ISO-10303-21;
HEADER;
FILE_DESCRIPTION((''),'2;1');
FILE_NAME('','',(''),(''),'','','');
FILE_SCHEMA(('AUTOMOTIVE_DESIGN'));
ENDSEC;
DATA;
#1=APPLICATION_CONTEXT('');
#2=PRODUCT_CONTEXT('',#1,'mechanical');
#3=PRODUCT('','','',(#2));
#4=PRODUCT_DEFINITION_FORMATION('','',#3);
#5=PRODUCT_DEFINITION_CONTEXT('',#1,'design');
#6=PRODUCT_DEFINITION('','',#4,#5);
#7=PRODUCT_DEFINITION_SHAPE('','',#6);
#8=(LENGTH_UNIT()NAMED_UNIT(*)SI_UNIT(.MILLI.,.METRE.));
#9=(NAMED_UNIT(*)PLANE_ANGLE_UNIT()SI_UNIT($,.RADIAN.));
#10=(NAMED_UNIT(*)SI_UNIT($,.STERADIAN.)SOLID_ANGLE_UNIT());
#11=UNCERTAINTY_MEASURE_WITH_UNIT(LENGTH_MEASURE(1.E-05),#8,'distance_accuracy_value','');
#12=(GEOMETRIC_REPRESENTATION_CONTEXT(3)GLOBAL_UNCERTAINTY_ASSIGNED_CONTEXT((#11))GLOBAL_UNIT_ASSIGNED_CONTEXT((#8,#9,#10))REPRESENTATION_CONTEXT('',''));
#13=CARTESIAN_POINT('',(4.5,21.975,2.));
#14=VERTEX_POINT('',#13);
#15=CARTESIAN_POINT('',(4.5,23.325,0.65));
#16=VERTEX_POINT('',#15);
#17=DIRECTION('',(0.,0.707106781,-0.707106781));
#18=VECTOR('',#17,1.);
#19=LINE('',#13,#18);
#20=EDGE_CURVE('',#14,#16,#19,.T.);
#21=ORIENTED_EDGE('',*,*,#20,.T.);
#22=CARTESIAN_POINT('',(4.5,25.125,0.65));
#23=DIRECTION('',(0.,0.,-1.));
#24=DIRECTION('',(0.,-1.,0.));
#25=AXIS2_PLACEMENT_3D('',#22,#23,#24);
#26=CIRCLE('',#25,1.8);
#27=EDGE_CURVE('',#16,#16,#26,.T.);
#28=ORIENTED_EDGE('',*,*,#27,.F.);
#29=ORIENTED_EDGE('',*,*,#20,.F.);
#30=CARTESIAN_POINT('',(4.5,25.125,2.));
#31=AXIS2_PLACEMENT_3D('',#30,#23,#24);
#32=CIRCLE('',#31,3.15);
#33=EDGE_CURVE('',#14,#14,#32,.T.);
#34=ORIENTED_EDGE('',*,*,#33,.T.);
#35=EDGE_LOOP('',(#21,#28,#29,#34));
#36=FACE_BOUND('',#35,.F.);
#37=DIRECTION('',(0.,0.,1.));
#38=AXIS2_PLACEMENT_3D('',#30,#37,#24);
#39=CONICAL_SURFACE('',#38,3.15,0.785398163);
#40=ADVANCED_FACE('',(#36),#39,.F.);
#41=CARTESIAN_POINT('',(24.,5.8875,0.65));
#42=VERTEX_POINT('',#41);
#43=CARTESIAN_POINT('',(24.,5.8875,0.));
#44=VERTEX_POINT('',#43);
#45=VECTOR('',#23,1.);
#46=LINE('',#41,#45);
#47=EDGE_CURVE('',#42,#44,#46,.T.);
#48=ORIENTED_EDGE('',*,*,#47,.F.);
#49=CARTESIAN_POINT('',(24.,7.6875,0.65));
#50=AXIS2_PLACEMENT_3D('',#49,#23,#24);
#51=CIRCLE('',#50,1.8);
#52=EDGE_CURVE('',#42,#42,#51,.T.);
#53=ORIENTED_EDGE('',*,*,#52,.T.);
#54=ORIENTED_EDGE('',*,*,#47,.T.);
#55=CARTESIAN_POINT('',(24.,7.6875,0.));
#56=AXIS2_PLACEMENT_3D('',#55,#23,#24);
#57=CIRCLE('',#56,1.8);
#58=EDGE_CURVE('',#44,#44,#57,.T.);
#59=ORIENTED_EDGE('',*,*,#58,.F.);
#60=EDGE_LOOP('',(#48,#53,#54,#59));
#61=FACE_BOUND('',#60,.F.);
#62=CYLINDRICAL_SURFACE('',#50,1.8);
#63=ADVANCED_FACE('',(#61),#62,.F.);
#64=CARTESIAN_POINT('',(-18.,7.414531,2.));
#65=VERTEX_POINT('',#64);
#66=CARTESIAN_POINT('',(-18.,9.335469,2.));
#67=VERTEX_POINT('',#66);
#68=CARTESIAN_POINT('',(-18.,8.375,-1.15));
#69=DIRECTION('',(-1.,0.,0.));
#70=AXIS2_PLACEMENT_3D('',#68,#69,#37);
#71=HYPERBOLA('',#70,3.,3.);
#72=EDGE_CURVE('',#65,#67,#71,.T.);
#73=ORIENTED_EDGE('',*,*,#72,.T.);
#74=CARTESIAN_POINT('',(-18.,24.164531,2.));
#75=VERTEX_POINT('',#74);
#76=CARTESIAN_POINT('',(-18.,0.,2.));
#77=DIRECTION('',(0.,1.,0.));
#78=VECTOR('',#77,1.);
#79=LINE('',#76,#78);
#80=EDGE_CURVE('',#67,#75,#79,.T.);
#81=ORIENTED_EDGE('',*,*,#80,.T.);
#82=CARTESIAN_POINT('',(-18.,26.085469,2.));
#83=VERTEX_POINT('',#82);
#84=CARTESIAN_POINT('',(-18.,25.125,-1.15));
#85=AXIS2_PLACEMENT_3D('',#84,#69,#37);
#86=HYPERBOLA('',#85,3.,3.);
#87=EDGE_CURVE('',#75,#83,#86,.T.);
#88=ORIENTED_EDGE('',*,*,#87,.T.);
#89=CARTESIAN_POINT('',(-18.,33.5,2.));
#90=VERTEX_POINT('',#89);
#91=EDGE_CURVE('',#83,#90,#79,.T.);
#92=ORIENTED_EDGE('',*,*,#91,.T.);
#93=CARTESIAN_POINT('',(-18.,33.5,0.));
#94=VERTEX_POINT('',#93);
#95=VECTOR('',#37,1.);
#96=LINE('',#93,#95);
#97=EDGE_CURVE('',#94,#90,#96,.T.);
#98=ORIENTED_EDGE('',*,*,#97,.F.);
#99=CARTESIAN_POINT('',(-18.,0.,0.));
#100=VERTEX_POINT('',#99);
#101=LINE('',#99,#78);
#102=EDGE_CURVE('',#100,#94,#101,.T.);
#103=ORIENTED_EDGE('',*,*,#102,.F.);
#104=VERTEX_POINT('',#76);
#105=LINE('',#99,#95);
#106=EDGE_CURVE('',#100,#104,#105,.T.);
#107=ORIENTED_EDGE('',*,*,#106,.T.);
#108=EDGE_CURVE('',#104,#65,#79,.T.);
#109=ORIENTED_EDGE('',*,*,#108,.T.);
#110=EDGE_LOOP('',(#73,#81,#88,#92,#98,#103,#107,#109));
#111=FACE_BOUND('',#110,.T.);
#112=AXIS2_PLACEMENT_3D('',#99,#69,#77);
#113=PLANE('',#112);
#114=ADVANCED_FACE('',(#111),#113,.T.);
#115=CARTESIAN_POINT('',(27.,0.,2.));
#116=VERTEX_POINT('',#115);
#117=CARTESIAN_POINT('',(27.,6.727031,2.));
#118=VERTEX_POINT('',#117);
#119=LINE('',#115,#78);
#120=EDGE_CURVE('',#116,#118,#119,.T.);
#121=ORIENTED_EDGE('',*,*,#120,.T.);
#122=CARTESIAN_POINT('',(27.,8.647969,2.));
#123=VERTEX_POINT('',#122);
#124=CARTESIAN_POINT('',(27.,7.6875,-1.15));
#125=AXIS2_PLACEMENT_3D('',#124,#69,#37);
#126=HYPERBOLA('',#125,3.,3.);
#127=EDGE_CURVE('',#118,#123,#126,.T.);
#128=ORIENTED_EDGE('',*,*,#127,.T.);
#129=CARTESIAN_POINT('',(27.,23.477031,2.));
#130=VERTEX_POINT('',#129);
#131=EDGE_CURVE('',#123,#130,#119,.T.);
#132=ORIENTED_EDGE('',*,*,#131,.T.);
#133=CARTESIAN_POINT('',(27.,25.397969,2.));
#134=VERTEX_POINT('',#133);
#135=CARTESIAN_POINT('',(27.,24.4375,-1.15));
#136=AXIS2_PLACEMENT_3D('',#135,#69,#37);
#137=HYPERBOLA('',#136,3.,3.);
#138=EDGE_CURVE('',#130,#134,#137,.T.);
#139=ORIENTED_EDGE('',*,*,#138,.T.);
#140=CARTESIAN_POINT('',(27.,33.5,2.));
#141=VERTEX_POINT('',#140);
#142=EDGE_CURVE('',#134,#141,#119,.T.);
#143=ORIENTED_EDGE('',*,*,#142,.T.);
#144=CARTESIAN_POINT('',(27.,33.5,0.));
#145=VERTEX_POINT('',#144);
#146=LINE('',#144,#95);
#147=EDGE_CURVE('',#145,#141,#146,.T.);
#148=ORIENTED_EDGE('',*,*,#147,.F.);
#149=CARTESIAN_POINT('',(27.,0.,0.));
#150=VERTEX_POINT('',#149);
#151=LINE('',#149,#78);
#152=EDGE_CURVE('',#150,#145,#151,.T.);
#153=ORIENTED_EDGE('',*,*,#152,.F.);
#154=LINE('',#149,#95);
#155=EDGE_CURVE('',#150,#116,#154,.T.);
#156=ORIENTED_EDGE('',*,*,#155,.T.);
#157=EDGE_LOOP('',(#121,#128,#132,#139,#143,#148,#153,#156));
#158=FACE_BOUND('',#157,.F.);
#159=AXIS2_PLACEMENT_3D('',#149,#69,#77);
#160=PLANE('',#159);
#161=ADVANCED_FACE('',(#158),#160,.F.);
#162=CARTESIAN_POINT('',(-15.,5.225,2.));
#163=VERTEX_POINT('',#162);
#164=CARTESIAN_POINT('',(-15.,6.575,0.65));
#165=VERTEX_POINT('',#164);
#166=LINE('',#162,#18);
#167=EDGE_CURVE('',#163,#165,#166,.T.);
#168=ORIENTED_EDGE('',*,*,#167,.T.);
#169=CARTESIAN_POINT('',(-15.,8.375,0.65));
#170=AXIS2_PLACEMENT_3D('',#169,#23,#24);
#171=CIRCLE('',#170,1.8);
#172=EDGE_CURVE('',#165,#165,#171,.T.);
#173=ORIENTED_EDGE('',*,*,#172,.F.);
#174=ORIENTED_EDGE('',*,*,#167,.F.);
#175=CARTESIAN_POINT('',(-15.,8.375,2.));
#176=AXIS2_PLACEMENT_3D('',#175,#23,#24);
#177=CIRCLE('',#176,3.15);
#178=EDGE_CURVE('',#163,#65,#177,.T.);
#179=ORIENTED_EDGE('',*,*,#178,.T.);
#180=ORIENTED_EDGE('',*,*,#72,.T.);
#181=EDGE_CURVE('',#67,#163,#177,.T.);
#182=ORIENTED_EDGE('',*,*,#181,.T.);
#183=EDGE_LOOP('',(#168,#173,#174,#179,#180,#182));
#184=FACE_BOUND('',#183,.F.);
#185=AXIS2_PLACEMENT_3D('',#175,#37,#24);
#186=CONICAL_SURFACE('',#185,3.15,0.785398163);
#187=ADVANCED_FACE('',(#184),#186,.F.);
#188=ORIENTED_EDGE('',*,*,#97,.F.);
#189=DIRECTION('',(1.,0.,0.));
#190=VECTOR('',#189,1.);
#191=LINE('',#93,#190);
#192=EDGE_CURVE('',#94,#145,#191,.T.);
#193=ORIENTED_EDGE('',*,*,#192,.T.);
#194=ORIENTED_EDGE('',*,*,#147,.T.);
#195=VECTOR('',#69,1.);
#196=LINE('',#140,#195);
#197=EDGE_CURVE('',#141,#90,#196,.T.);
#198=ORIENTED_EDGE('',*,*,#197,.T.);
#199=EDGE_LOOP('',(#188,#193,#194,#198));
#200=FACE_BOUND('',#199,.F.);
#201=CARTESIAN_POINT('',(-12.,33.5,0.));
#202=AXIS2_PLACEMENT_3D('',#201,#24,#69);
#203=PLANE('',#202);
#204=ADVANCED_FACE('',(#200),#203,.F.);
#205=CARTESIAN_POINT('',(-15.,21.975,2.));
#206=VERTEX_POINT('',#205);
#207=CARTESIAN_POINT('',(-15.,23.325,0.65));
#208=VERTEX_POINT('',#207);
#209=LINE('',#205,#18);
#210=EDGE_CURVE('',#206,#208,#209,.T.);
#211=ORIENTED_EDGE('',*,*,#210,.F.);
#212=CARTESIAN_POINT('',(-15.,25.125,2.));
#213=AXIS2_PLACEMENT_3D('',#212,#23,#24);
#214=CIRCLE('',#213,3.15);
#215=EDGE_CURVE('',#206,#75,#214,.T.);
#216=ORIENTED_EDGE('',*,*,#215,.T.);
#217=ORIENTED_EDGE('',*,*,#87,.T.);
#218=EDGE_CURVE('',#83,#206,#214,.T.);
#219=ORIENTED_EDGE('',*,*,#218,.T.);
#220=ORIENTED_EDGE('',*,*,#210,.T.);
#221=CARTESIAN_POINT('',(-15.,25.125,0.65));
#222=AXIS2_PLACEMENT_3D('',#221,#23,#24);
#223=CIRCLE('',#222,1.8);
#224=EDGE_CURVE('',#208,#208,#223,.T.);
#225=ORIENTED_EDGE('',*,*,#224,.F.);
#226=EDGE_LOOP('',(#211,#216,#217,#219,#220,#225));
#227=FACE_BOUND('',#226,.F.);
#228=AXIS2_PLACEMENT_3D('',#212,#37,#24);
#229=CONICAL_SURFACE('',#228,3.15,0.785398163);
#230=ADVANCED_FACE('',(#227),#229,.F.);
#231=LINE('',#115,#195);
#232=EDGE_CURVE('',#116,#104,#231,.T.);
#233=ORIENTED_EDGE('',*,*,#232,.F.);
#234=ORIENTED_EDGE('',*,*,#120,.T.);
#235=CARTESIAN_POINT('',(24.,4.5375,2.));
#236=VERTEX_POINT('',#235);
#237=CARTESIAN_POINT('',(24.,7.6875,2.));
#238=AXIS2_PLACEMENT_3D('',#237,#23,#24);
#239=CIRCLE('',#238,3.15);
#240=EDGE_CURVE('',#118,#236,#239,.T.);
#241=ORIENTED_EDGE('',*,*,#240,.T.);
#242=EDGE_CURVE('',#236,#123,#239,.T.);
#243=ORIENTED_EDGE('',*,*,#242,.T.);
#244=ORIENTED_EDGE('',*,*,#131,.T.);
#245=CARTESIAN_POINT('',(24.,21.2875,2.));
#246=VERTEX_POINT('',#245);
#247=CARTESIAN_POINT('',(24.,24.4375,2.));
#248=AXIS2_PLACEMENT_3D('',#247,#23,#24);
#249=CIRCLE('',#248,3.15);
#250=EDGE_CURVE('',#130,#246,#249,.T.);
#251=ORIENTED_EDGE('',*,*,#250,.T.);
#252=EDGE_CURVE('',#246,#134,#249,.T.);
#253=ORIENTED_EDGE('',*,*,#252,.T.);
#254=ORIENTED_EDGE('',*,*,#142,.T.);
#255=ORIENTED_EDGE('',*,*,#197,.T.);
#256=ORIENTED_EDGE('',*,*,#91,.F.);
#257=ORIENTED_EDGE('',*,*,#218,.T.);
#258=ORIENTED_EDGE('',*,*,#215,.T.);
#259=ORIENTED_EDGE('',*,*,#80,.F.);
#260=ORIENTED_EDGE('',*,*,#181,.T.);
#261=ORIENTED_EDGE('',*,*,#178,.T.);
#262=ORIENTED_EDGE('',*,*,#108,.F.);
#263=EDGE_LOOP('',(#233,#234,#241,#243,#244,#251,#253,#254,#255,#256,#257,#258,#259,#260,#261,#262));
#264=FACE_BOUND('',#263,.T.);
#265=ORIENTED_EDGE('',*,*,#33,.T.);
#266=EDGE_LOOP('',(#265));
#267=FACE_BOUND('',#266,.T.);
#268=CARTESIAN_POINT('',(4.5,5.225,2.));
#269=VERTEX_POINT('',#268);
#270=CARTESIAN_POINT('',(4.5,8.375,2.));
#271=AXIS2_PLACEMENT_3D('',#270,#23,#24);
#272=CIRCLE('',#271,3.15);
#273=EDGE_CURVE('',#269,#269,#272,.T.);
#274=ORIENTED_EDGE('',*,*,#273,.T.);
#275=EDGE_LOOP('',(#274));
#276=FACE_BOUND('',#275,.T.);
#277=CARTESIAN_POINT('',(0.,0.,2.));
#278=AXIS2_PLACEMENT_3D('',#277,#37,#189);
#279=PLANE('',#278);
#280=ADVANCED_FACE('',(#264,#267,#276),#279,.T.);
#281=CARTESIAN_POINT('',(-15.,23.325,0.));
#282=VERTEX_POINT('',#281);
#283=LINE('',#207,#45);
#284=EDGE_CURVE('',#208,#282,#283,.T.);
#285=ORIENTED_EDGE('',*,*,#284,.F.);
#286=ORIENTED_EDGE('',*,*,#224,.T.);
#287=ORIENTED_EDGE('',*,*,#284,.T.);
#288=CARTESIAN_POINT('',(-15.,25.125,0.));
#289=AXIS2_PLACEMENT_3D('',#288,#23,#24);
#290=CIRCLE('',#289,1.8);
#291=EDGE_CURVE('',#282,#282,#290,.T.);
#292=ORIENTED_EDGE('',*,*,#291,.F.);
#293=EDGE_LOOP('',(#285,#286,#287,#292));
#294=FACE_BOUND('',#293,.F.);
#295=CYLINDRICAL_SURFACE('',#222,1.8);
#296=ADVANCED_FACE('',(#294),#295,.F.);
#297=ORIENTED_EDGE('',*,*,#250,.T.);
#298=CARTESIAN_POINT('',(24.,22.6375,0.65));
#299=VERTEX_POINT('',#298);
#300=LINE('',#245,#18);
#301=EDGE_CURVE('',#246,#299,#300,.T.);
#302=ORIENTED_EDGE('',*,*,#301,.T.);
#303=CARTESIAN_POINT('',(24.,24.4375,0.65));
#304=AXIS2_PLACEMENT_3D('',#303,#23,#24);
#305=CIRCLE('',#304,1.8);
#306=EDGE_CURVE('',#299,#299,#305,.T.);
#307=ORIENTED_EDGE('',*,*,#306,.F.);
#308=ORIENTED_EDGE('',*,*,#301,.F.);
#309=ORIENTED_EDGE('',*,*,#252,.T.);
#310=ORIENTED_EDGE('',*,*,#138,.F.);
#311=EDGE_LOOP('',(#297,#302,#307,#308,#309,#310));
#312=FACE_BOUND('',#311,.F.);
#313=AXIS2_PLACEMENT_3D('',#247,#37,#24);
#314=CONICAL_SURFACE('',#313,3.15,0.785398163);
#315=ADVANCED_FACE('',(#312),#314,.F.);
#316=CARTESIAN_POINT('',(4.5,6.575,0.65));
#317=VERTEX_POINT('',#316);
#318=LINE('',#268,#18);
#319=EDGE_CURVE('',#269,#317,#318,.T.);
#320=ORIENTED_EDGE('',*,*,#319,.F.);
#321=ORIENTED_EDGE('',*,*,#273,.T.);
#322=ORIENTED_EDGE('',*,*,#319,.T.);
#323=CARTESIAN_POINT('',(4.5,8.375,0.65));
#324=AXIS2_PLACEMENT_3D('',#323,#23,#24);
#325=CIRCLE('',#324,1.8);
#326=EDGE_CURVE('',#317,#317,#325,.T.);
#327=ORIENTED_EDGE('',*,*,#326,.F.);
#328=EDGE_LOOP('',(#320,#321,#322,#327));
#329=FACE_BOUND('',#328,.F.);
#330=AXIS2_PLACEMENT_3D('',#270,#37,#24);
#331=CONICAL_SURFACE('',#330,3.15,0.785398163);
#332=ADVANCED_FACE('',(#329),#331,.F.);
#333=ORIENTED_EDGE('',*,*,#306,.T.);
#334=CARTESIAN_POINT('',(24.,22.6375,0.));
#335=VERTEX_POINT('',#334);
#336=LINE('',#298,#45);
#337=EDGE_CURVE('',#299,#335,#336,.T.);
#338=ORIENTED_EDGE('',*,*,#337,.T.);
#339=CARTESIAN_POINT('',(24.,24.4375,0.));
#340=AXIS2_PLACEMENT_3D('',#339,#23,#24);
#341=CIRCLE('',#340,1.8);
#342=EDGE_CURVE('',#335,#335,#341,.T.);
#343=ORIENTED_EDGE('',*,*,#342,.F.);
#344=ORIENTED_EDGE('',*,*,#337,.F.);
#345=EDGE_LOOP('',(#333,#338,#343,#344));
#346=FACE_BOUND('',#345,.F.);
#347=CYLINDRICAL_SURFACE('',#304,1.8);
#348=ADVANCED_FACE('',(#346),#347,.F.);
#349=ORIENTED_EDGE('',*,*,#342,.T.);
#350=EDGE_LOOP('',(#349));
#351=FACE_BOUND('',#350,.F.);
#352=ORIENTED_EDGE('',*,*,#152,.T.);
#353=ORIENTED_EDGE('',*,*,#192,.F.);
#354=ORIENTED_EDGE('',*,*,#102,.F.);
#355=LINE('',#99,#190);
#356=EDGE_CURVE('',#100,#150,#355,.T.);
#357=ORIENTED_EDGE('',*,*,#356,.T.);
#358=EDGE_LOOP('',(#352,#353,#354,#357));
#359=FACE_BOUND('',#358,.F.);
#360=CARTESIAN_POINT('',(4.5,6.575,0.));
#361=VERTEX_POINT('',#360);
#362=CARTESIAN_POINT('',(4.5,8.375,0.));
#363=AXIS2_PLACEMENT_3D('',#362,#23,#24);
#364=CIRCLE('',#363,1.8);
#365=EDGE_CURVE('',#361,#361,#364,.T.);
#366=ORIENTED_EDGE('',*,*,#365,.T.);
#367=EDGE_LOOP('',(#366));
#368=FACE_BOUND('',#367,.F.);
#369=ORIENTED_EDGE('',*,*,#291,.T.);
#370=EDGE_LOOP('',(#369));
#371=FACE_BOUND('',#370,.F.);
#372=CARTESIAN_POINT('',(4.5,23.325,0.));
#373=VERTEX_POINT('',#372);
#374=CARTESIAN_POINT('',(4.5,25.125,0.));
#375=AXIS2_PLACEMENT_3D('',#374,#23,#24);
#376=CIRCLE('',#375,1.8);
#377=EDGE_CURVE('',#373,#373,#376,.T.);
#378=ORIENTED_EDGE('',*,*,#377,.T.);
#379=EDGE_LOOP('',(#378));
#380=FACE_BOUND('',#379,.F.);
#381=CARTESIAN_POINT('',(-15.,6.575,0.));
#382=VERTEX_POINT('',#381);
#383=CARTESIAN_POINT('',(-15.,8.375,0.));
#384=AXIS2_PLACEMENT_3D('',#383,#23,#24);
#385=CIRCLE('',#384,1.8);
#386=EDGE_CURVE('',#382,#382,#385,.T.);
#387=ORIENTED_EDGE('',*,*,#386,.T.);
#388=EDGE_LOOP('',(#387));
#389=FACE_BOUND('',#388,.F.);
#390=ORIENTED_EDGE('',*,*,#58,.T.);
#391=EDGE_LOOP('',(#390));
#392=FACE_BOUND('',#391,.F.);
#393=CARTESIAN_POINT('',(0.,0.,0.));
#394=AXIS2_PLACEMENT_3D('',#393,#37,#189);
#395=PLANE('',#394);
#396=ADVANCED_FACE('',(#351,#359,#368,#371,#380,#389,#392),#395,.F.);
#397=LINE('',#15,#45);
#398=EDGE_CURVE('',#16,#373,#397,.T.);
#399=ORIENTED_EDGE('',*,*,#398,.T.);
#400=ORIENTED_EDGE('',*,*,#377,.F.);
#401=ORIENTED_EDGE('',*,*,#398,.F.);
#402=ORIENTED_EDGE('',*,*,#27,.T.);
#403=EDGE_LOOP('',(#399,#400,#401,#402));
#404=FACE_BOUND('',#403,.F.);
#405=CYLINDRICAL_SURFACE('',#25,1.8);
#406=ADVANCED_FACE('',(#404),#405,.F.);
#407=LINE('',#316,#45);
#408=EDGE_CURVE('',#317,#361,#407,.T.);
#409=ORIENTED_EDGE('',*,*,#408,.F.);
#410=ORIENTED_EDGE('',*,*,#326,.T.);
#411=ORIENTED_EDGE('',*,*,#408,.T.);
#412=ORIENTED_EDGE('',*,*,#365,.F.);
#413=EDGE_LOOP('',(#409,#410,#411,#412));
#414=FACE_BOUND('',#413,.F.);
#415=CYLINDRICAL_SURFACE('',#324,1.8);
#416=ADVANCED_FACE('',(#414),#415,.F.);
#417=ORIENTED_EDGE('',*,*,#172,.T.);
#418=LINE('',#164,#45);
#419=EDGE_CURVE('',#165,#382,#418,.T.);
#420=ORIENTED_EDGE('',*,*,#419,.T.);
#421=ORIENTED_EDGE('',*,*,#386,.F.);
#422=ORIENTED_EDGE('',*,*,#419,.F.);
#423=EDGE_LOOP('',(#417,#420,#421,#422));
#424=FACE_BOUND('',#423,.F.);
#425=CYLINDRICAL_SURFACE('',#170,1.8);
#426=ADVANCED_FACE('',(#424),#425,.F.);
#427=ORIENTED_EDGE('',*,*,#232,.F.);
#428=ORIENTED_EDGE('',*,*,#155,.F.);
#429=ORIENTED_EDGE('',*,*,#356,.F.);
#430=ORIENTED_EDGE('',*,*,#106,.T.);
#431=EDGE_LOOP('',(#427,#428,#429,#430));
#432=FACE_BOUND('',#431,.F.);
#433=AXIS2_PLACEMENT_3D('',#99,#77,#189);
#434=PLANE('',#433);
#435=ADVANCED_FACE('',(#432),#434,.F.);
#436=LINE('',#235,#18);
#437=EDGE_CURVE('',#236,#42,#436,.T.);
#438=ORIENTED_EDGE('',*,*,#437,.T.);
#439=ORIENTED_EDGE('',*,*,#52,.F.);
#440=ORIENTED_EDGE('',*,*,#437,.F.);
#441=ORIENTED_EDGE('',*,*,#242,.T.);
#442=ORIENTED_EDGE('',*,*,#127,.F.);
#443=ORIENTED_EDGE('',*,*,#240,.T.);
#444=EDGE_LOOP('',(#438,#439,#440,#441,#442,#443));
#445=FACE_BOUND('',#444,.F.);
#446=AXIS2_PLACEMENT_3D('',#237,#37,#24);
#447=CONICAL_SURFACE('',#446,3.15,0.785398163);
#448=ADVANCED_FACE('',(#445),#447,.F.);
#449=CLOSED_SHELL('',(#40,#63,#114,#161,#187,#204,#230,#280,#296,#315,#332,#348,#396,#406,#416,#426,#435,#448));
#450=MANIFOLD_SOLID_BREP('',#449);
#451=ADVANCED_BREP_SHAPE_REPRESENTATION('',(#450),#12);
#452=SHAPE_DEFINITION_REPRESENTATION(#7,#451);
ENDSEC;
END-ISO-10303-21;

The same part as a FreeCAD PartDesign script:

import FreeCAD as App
import Part
import Sketcher
Q = App.Units.Quantity

doc = App.newDocument("Part")
body = doc.addObject("PartDesign::Body", "Body")

# Sketch on XY plane
sketch1 = doc.addObject("Sketcher::SketchObject", "Sketch")
body.addObject(sketch1)
sketch1.AttachmentSupport = (doc.XY_Plane, [""])
sketch1.MapMode = "FlatFace"
sketch1.addGeometry(Part.LineSegment(App.Vector(-18, 0, 0), App.Vector(27, 0, 0)), False)
sketch1.addGeometry(Part.LineSegment(App.Vector(27, 0, 0), App.Vector(27, 34, 0)), False)
sketch1.addGeometry(Part.LineSegment(App.Vector(27, 34, 0), App.Vector(-18, 34, 0)), False)
sketch1.addGeometry(Part.LineSegment(App.Vector(-18, 34, 0), App.Vector(-18, 0, 0)), False)
sketch1.addConstraint(Sketcher.Constraint("Coincident", 0, 2, 1, 1))
sketch1.addConstraint(Sketcher.Constraint("Coincident", 1, 2, 2, 1))
sketch1.addConstraint(Sketcher.Constraint("Coincident", 2, 2, 3, 1))
sketch1.addConstraint(Sketcher.Constraint("Coincident", 3, 2, 0, 1))
sketch1.addConstraint(Sketcher.Constraint("Horizontal", 0))
sketch1.addConstraint(Sketcher.Constraint("Vertical", 1))
sketch1.addConstraint(Sketcher.Constraint("Horizontal", 2))
sketch1.addConstraint(Sketcher.Constraint("Vertical", 3))
sketch1.addConstraint(Sketcher.Constraint("PointOnObject", 0, 2, -1))
sketch1.addConstraint(Sketcher.Constraint("DistanceX", 0, 1, 0, 2, Q("45 mm")))
sketch1.addConstraint(Sketcher.Constraint("DistanceY", 1, 1, 1, 2, Q("33.5 mm")))
sketch1.addConstraint(Sketcher.Constraint("DistanceX", -1, 1, 0, 2, Q("27 mm")))
pad1 = doc.addObject("PartDesign::Pad", "Pad")
body.addObject(pad1)
pad1.Profile = sketch1
pad1.Length = 2

# Sketch on XY plane
sketch2 = doc.addObject("Sketcher::SketchObject", "Sketch001")
body.addObject(sketch2)
sketch2.AttachmentSupport = (doc.XY_Plane, [""])
sketch2.MapMode = "FlatFace"
sketch2.AttachmentOffset = App.Placement(App.Vector(0, 0, 2), App.Rotation())
sketch2.addGeometry(Part.Circle(App.Vector(-15, 25.1, 0), App.Vector(0, 0, 1), 1.8), False)
sketch2.addGeometry(Part.Circle(App.Vector(-15, 8.4, 0), App.Vector(0, 0, 1), 1.8), False)
sketch2.addGeometry(Part.Circle(App.Vector(4.5, 8.4, 0), App.Vector(0, 0, 1), 1.8), False)
sketch2.addGeometry(Part.Circle(App.Vector(4.5, 25.1, 0), App.Vector(0, 0, 1), 1.8), False)
sketch2.addGeometry(Part.Circle(App.Vector(24, 24.4, 0), App.Vector(0, 0, 1), 1.8), False)
sketch2.addGeometry(Part.Circle(App.Vector(24, 7.7, 0), App.Vector(0, 0, 1), 1.8), False)
sketch2.addConstraint(Sketcher.Constraint("Equal", 0, 1))
sketch2.addConstraint(Sketcher.Constraint("Equal", 1, 2))
sketch2.addConstraint(Sketcher.Constraint("Equal", 2, 3))
sketch2.addConstraint(Sketcher.Constraint("Equal", 3, 4))
sketch2.addConstraint(Sketcher.Constraint("Equal", 4, 5))
sketch2.addConstraint(Sketcher.Constraint("Horizontal", 1, 3, 2, 3))
sketch2.addConstraint(Sketcher.Constraint("Horizontal", 0, 3, 3, 3))
sketch2.addConstraint(Sketcher.Constraint("Vertical", 0, 3, 1, 3))
sketch2.addConstraint(Sketcher.Constraint("Vertical", 2, 3, 3, 3))
sketch2.addConstraint(Sketcher.Constraint("Vertical", 4, 3, 5, 3))
sketch2.addConstraint(Sketcher.Constraint("Diameter", 0, Q("3.6 mm")))
sketch2.addConstraint(Sketcher.Constraint("DistanceX", 0, 3, -1, 1, Q("15 mm")))
sketch2.addConstraint(Sketcher.Constraint("DistanceX", -1, 1, 4, 3, Q("24 mm")))
sketch2.addConstraint(Sketcher.Constraint("DistanceX", -1, 1, 2, 3, Q("4.5 mm")))
sketch2.addConstraint(Sketcher.Constraint("DistanceY", 1, 3, 0, 3, Q("16.75 mm")))
sketch2.addConstraint(Sketcher.Constraint("DistanceY", 5, 3, 4, 3, Q("16.75 mm")))
sketch2.addConstraint(Sketcher.Constraint("DistanceY", -1, 1, 0, 3, Q("25.125 mm")))
sketch2.addConstraint(Sketcher.Constraint("DistanceY", -1, 1, 4, 3, Q("24.4375 mm")))
doc.recompute()
hole = doc.addObject("PartDesign::Hole", "Hole")
body.addObject(hole)
hole.Profile = sketch2
hole.ThreadType = "None"
hole.Diameter = 3.6
hole.DepthType = "ThroughAll"
hole.HoleCutType = "Countersink"
hole.HoleCutDiameter = 6.3
hole.HoleCutCountersinkAngle = 90

doc.recompute()
